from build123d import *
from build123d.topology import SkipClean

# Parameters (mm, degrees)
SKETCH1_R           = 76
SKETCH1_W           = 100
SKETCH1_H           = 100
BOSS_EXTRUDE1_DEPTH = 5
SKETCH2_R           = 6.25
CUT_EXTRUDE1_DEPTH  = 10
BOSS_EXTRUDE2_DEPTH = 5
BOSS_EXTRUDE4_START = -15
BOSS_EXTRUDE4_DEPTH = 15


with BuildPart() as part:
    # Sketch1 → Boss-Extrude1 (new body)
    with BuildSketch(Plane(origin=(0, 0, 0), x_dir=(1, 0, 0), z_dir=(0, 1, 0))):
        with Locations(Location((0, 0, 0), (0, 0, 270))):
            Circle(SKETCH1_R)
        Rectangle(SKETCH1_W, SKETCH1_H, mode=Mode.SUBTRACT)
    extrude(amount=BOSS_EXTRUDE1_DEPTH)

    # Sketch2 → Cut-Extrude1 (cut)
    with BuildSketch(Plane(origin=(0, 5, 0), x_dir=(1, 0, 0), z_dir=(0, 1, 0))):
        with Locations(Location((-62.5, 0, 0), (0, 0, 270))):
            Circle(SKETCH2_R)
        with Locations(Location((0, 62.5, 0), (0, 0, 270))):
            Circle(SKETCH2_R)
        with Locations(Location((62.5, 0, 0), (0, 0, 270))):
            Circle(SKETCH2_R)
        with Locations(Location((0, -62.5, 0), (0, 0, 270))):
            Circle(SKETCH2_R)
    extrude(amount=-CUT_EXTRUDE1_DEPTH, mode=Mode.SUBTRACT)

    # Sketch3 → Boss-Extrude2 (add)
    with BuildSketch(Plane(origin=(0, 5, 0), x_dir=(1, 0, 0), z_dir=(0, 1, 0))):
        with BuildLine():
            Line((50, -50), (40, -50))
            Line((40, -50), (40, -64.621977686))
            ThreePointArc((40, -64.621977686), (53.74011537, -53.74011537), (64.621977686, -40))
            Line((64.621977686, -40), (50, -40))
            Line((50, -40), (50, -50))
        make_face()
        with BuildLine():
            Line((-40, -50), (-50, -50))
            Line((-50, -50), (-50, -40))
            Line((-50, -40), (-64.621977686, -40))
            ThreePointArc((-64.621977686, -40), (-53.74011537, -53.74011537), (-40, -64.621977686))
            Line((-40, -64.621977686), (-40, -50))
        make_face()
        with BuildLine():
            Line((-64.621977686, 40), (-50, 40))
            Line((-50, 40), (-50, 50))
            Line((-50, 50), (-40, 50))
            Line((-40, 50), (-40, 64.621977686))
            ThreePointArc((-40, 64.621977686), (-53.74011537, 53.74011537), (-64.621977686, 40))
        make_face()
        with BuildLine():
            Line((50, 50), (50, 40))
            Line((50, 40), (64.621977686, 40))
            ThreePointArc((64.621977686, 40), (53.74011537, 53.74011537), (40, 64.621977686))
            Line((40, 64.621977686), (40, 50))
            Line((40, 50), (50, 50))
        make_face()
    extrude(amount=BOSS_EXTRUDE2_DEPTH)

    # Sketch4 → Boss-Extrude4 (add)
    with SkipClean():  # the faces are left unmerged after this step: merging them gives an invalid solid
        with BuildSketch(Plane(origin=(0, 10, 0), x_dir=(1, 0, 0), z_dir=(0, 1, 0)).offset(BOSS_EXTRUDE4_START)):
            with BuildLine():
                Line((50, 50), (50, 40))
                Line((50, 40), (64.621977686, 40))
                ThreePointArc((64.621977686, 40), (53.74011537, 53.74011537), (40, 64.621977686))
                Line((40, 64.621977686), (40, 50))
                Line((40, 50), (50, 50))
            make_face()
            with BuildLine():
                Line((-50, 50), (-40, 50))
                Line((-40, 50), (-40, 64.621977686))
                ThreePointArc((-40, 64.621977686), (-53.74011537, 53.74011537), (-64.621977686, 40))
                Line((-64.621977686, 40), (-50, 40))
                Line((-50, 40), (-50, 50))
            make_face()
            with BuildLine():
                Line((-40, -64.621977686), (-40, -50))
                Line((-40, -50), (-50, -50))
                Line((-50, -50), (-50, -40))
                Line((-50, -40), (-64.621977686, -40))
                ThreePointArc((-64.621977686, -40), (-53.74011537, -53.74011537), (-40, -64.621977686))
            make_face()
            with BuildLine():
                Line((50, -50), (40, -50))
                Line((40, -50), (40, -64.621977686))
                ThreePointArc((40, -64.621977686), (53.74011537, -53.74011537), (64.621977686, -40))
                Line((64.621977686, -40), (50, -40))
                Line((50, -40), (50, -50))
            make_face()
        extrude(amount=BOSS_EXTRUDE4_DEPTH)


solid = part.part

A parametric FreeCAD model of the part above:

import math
import FreeCAD as App
import Part
import Sketcher

V = App.Vector
Q = App.Units.Quantity


def add_polygon(sketch, points):
    """Adds a closed chain of lines whose ends are joined by coincident constraints."""
    first, n = sketch.GeometryCount, len(points)
    for a, b in zip(points, points[1:] + points[:1]):
        sketch.addGeometry(Part.LineSegment(App.Vector(*a, 0), App.Vector(*b, 0)), False)
    for i in range(n):
        sketch.addConstraint(Sketcher.Constraint("Coincident", first + i, 2, first + (i + 1) % n, 1))

doc = App.newDocument("Part")
params = doc.addObject("Spreadsheet::Sheet", "Params")
for row, (alias, value) in enumerate([
    ("sketch1_diameter", "152 mm"),
    ("sketch1_width", "100 mm"),
    ("pad1_length", "5 mm"),
    ("sketch2_diameter", "12.5 mm"),
    ("pocket1_length", "10 mm"),
    ("sketch3_radius", "76 mm"),
    ("sketch3_width", "10 mm"),
    ("pad2_length", "5 mm"),
    ("sketch4_radius", "76 mm"),
    ("sketch4_width", "10 mm"),
    ("pad3_length", "15 mm"),
], start=1):
    params.set(f"A{row}", alias)
    params.set(f"B{row}", "=" + value)
    params.setAlias(f"B{row}", alias)

body = doc.addObject("PartDesign::Body", "Body")

sketch1 = doc.addObject("Sketcher::SketchObject", "Sketch")
body.addObject(sketch1)
sketch1.AttachmentSupport = (doc.XZ_Plane, [""])
sketch1.MapMode = "FlatFace"
sketch1.addGeometry(Part.Circle(V(0, 0, 0), V(0, 0, 1), 76), False)
add_polygon(sketch1, [(50, 50), (-50, 50), (-50, -50), (50, -50)])
sketch1.addConstraint([
    Sketcher.Constraint("Horizontal", 1),
    Sketcher.Constraint("Vertical", 2),
    Sketcher.Constraint("Horizontal", 3),
    Sketcher.Constraint("Vertical", 4),
    Sketcher.Constraint("Coincident", 0, 3, -1, 1),
    Sketcher.Constraint("Symmetric", 1, 2, 3, 2, -1, 1),
    Sketcher.Constraint("Equal", 3, 2),
    Sketcher.Constraint("Diameter", 0, Q("152 mm")),
    Sketcher.Constraint("DistanceX", 1, 2, 1, 1, Q("100 mm")),
])
sketch1.setExpression("Constraints[11]", "Params.sketch1_diameter")
sketch1.setExpression("Constraints[12]", "Params.sketch1_width")
pad1 = doc.addObject("PartDesign::Pad", "Pad")
body.addObject(pad1)
pad1.Profile = sketch1
pad1.setExpression("Length", "Params.pad1_length")
pad1.Reversed = True

sketch2 = doc.addObject("Sketcher::SketchObject", "Sketch001")
body.addObject(sketch2)
sketch2.AttachmentSupport = (doc.XZ_Plane, [""])
sketch2.MapMode = "FlatFace"
sketch2.AttachmentOffset = App.Placement(V(0, 0, -5), App.Rotation())
sketch2.addGeometry([
    Part.Circle(V(-62, 0, 0), V(0, 0, 1), 6),
    Part.Circle(V(0, -62, 0), V(0, 0, 1), 6),
    Part.Circle(V(62, 0, 0), V(0, 0, 1), 6),
    Part.Circle(V(0, 62, 0), V(0, 0, 1), 6),
], False)
sketch2.addConstraint([
    Sketcher.Constraint("Equal", 0, 1),
    Sketcher.Constraint("Equal", 1, 2),
    Sketcher.Constraint("Equal", 2, 3),
    Sketcher.Constraint("Symmetric", 0, 3, 2, 3, -1, 1),
    Sketcher.Constraint("Symmetric", 1, 3, 3, 3, -1, 1),
    Sketcher.Constraint("PointOnObject", 0, 3, -1),
    Sketcher.Constraint("PointOnObject", 1, 3, -2),
    Sketcher.Constraint("Diameter", 0, Q("12.5 mm")),
    Sketcher.Constraint("DistanceX", 0, 3, 2, 3, Q("125 mm")),
    Sketcher.Constraint("DistanceY", 1, 3, 3, 3, Q("125 mm")),
])
sketch2.setExpression("Constraints[7]", "Params.sketch2_diameter")
pocket1 = doc.addObject("PartDesign::Pocket", "Pocket")
body.addObject(pocket1)
pocket1.Profile = sketch2
pocket1.setExpression("Length", "Params.pocket1_length")
pocket1.Reversed = True

sketch3 = doc.addObject("Sketcher::SketchObject", "Sketch002")
body.addObject(sketch3)
sketch3.AttachmentSupport = (doc.XZ_Plane, [""])
sketch3.MapMode = "FlatFace"
sketch3.AttachmentOffset = App.Placement(V(0, 0, -5), App.Rotation())
sketch3.addGeometry([
    Part.LineSegment(V(50, 50, 0), V(40, 50, 0)),
    Part.LineSegment(V(40, 50, 0), V(40, 65, 0)),
    Part.ArcOfCircle(Part.Circle(V(0, 0, 0), V(0, 0, 1), 76), math.radians(32), math.radians(58)),
    Part.LineSegment(V(65, 40, 0), V(50, 40, 0)),
    Part.LineSegment(V(50, 40, 0), V(50, 50, 0)),
    Part.LineSegment(V(-40, 50, 0), V(-50, 50, 0)),
    Part.LineSegment(V(-50, 50, 0), V(-50, 40, 0)),
    Part.LineSegment(V(-50, 40, 0), V(-65, 40, 0)),
    Part.ArcOfCircle(Part.Circle(V(0, 0, 0), V(0, 0, 1), 76), math.radians(122), math.radians(148)),
    Part.LineSegment(V(-40, 65, 0), V(-40, 50, 0)),
    Part.LineSegment(V(-65, -40, 0), V(-50, -40, 0)),
    Part.LineSegment(V(-50, -40, 0), V(-50, -50, 0)),
    Part.LineSegment(V(-50, -50, 0), V(-40, -50, 0)),
    Part.LineSegment(V(-40, -50, 0), V(-40, -65, 0)),
    Part.ArcOfCircle(Part.Circle(V(0, 0, 0), V(0, 0, 1), 76), math.radians(-148), math.radians(-122)),
    Part.LineSegment(V(50, -50, 0), V(50, -40, 0)),
    Part.LineSegment(V(50, -40, 0), V(65, -40, 0)),
    Part.ArcOfCircle(Part.Circle(V(0, 0, 0), V(0, 0, 1), 76), math.radians(-58), math.radians(-32)),
    Part.LineSegment(V(40, -65, 0), V(40, -50, 0)),
    Part.LineSegment(V(40, -50, 0), V(50, -50, 0)),
], False)
sketch3.addConstraint([
    Sketcher.Constraint("Coincident", 0, 2, 1, 1),
    Sketcher.Constraint("Coincident", 1, 2, 2, 2),
    Sketcher.Constraint("Coincident", 2, 1, 3, 1),
    Sketcher.Constraint("Coincident", 3, 2, 4, 1),
    Sketcher.Constraint("Coincident", 4, 2, 0, 1),
    Sketcher.Constraint("Coincident", 5, 2, 6, 1),
    Sketcher.Constraint("Coincident", 6, 2, 7, 1),
    Sketcher.Constraint("Coincident", 7, 2, 8, 2),
    Sketcher.Constraint("Coincident", 8, 1, 9, 1),
    Sketcher.Constraint("Coincident", 9, 2, 5, 1),
    Sketcher.Constraint("Coincident", 10, 2, 11, 1),
    Sketcher.Constraint("Coincident", 11, 2, 12, 1),
    Sketcher.Constraint("Coincident", 12, 2, 13, 1),
    Sketcher.Constraint("Coincident", 13, 2, 14, 2),
    Sketcher.Constraint("Coincident", 14, 1, 10, 1),
    Sketcher.Constraint("Coincident", 15, 2, 16, 1),
    Sketcher.Constraint("Coincident", 16, 2, 17, 2),
    Sketcher.Constraint("Coincident", 17, 1, 18, 1),
    Sketcher.Constraint("Coincident", 18, 2, 19, 1),
    Sketcher.Constraint("Coincident", 19, 2, 15, 1),
    Sketcher.Constraint("Horizontal", 0),
    Sketcher.Constraint("Vertical", 1),
    Sketcher.Constraint("Horizontal", 3),
    Sketcher.Constraint("Vertical", 4),
    Sketcher.Constraint("Horizontal", 5),
    Sketcher.Constraint("Vertical", 6),
    Sketcher.Constraint("Horizontal", 7),
    Sketcher.Constraint("Vertical", 9),
    Sketcher.Constraint("Horizontal", 10),
    Sketcher.Constraint("Vertical", 11),
    Sketcher.Constraint("Horizontal", 12),
    Sketcher.Constraint("Vertical", 13),
    Sketcher.Constraint("Vertical", 15),
    Sketcher.Constraint("Horizontal", 16),
    Sketcher.Constraint("Vertical", 18),
    Sketcher.Constraint("Horizontal", 19),
    Sketcher.Constraint("Coincident", 2, 3, -1, 1),
    Sketcher.Constraint("Coincident", 8, 3, -1, 1),
    Sketcher.Constraint("Coincident", 14, 3, -1, 1),
    Sketcher.Constraint("Coincident", 17, 3, -1, 1),
    Sketcher.Constraint("Equal", 2, 8),
    Sketcher.Constraint("Equal", 8, 14),
    Sketcher.Constraint("Equal", 14, 17),
    Sketcher.Constraint("Symmetric", 3, 2, 10, 2, -1, 1),
    Sketcher.Constraint("Symmetric", 0, 2, 12, 2, -1, 1),
    Sketcher.Constraint("Symmetric", 6, 2, 15, 2, -1, 1),
    Sketcher.Constraint("Symmetric", 9, 2, 18, 2, -1, 1),
    Sketcher.Constraint("Symmetric", 4, 2, 5, 2, -2),
    Sketcher.Constraint("Horizontal", 3, 2, 6, 2),
    Sketcher.Constraint("Horizontal", 1, 2, 8, 1),
    Sketcher.Constraint("Equal", 16, 1),
    Sketcher.Constraint("Equal", 19, 4),
    Sketcher.Constraint("Radius", 2, Q("76 mm")),
    Sketcher.Constraint("DistanceX", 0, 2, 0, 1, Q("10 mm")),
    Sketcher.Constraint("DistanceX", -1, 1, 0, 2, Q("40 mm")),
])
sketch3.setExpression("Constraints[52]", "Params.sketch3_radius")
sketch3.setExpression("Constraints[53]", "Params.sketch3_width")
pad2 = doc.addObject("PartDesign::Pad", "Pad001")
body.addObject(pad2)
pad2.Profile = sketch3
pad2.setExpression("Length", "Params.pad2_length")
pad2.Reversed = True

sketch4 = doc.addObject("Sketcher::SketchObject", "Sketch003")
body.addObject(sketch4)
sketch4.AttachmentSupport = (doc.XZ_Plane, [""])
sketch4.MapMode = "FlatFace"
sketch4.AttachmentOffset = App.Placement(V(0, 0, 5), App.Rotation())
sketch4.addGeometry([
    Part.LineSegment(V(50, -50, 0), V(50, -40, 0)),
    Part.LineSegment(V(50, -40, 0), V(65, -40, 0)),
    Part.ArcOfCircle(Part.Circle(V(0, 0, 0), V(0, 0, 1), 76), math.radians(-58), math.radians(-32)),
    Part.LineSegment(V(40, -65, 0), V(40, -50, 0)),
    Part.LineSegment(V(40, -50, 0), V(50, -50, 0)),
    Part.LineSegment(V(-50, -50, 0), V(-40, -50, 0)),
    Part.LineSegment(V(-40, -50, 0), V(-40, -65, 0)),
    Part.ArcOfCircle(Part.Circle(V(0, 0, 0), V(0, 0, 1), 76), math.radians(-148), math.radians(-122)),
    Part.LineSegment(V(-65, -40, 0), V(-50, -40, 0)),
    Part.LineSegment(V(-50, -40, 0), V(-50, -50, 0)),
    Part.LineSegment(V(-40, 65, 0), V(-40, 50, 0)),
    Part.LineSegment(V(-40, 50, 0), V(-50, 50, 0)),
    Part.LineSegment(V(-50, 50, 0), V(-50, 40, 0)),
    Part.LineSegment(V(-50, 40, 0), V(-65, 40, 0)),
    Part.ArcOfCircle(Part.Circle(V(0, 0, 0), V(0, 0, 1), 76), math.radians(122), math.radians(148)),
    Part.LineSegment(V(50, 50, 0), V(40, 50, 0)),
    Part.LineSegment(V(40, 50, 0), V(40, 65, 0)),
    Part.ArcOfCircle(Part.Circle(V(0, 0, 0), V(0, 0, 1), 76), math.radians(32), math.radians(58)),
    Part.LineSegment(V(65, 40, 0), V(50, 40, 0)),
    Part.LineSegment(V(50, 40, 0), V(50, 50, 0)),
], False)
sketch4.addConstraint([
    Sketcher.Constraint("Coincident", 0, 2, 1, 1),
    Sketcher.Constraint("Coincident", 1, 2, 2, 2),
    Sketcher.Constraint("Coincident", 2, 1, 3, 1),
    Sketcher.Constraint("Coincident", 3, 2, 4, 1),
    Sketcher.Constraint("Coincident", 4, 2, 0, 1),
    Sketcher.Constraint("Coincident", 5, 2, 6, 1),
    Sketcher.Constraint("Coincident", 6, 2, 7, 2),
    Sketcher.Constraint("Coincident", 7, 1, 8, 1),
    Sketcher.Constraint("Coincident", 8, 2, 9, 1),
    Sketcher.Constraint("Coincident", 9, 2, 5, 1),
    Sketcher.Constraint("Coincident", 10, 2, 11, 1),
    Sketcher.Constraint("Coincident", 11, 2, 12, 1),
    Sketcher.Constraint("Coincident", 12, 2, 13, 1),
    Sketcher.Constraint("Coincident", 13, 2, 14, 2),
    Sketcher.Constraint("Coincident", 14, 1, 10, 1),
    Sketcher.Constraint("Coincident", 15, 2, 16, 1),
    Sketcher.Constraint("Coincident", 16, 2, 17, 2),
    Sketcher.Constraint("Coincident", 17, 1, 18, 1),
    Sketcher.Constraint("Coincident", 18, 2, 19, 1),
    Sketcher.Constraint("Coincident", 19, 2, 15, 1),
    Sketcher.Constraint("Vertical", 0),
    Sketcher.Constraint("Horizontal", 1),
    Sketcher.Constraint("Vertical", 3),
    Sketcher.Constraint("Horizontal", 4),
    Sketcher.Constraint("Horizontal", 5),
    Sketcher.Constraint("Vertical", 6),
    Sketcher.Constraint("Horizontal", 8),
    Sketcher.Constraint("Vertical", 9),
    Sketcher.Constraint("Vertical", 10),
    Sketcher.Constraint("Horizontal", 11),
    Sketcher.Constraint("Vertical", 12),
    Sketcher.Constraint("Horizontal", 13),
    Sketcher.Constraint("Horizontal", 15),
    Sketcher.Constraint("Vertical", 16),
    Sketcher.Constraint("Horizontal", 18),
    Sketcher.Constraint("Vertical", 19),
    Sketcher.Constraint("Coincident", 2, 3, -1, 1),
    Sketcher.Constraint("Coincident", 7, 3, -1, 1),
    Sketcher.Constraint("Coincident", 14, 3, -1, 1),
    Sketcher.Constraint("Coincident", 17, 3, -1, 1),
    Sketcher.Constraint("Equal", 2, 7),
    Sketcher.Constraint("Equal", 7, 14),
    Sketcher.Constraint("Equal", 14, 17),
    Sketcher.Constraint("Symmetric", 3, 2, 10, 2, -1, 1),
    Sketcher.Constraint("Symmetric", 0, 2, 12, 2, -1, 1),
    Sketcher.Constraint("Symmetric", 5, 2, 15, 2, -1, 1),
    Sketcher.Constraint("Symmetric", 8, 2, 18, 2, -1, 1),
    Sketcher.Constraint("Symmetric", 3, 2, 5, 2, -2),
    Sketcher.Constraint("Symmetric", 0, 2, 8, 2, -2),
    Sketcher.Constraint("Equal", 15, 0),
    Sketcher.Constraint("Equal", 18, 3),
    Sketcher.Constraint("Radius", 2, Q("76 mm")),
    Sketcher.Constraint("DistanceX", 4, 1, 4, 2, Q("10 mm")),
    Sketcher.Constraint("DistanceX", -1, 1, 0, 2, Q("50 mm")),
])
sketch4.setExpression("Constraints[51]", "Params.sketch4_radius")
sketch4.setExpression("Constraints[52]", "Params.sketch4_width")
pad3 = doc.addObject("PartDesign::Pad", "Pad002")
body.addObject(pad3)
pad3.Profile = sketch4
pad3.setExpression("Length", "Params.pad3_length")
pad3.Reversed = True

doc.recompute()
